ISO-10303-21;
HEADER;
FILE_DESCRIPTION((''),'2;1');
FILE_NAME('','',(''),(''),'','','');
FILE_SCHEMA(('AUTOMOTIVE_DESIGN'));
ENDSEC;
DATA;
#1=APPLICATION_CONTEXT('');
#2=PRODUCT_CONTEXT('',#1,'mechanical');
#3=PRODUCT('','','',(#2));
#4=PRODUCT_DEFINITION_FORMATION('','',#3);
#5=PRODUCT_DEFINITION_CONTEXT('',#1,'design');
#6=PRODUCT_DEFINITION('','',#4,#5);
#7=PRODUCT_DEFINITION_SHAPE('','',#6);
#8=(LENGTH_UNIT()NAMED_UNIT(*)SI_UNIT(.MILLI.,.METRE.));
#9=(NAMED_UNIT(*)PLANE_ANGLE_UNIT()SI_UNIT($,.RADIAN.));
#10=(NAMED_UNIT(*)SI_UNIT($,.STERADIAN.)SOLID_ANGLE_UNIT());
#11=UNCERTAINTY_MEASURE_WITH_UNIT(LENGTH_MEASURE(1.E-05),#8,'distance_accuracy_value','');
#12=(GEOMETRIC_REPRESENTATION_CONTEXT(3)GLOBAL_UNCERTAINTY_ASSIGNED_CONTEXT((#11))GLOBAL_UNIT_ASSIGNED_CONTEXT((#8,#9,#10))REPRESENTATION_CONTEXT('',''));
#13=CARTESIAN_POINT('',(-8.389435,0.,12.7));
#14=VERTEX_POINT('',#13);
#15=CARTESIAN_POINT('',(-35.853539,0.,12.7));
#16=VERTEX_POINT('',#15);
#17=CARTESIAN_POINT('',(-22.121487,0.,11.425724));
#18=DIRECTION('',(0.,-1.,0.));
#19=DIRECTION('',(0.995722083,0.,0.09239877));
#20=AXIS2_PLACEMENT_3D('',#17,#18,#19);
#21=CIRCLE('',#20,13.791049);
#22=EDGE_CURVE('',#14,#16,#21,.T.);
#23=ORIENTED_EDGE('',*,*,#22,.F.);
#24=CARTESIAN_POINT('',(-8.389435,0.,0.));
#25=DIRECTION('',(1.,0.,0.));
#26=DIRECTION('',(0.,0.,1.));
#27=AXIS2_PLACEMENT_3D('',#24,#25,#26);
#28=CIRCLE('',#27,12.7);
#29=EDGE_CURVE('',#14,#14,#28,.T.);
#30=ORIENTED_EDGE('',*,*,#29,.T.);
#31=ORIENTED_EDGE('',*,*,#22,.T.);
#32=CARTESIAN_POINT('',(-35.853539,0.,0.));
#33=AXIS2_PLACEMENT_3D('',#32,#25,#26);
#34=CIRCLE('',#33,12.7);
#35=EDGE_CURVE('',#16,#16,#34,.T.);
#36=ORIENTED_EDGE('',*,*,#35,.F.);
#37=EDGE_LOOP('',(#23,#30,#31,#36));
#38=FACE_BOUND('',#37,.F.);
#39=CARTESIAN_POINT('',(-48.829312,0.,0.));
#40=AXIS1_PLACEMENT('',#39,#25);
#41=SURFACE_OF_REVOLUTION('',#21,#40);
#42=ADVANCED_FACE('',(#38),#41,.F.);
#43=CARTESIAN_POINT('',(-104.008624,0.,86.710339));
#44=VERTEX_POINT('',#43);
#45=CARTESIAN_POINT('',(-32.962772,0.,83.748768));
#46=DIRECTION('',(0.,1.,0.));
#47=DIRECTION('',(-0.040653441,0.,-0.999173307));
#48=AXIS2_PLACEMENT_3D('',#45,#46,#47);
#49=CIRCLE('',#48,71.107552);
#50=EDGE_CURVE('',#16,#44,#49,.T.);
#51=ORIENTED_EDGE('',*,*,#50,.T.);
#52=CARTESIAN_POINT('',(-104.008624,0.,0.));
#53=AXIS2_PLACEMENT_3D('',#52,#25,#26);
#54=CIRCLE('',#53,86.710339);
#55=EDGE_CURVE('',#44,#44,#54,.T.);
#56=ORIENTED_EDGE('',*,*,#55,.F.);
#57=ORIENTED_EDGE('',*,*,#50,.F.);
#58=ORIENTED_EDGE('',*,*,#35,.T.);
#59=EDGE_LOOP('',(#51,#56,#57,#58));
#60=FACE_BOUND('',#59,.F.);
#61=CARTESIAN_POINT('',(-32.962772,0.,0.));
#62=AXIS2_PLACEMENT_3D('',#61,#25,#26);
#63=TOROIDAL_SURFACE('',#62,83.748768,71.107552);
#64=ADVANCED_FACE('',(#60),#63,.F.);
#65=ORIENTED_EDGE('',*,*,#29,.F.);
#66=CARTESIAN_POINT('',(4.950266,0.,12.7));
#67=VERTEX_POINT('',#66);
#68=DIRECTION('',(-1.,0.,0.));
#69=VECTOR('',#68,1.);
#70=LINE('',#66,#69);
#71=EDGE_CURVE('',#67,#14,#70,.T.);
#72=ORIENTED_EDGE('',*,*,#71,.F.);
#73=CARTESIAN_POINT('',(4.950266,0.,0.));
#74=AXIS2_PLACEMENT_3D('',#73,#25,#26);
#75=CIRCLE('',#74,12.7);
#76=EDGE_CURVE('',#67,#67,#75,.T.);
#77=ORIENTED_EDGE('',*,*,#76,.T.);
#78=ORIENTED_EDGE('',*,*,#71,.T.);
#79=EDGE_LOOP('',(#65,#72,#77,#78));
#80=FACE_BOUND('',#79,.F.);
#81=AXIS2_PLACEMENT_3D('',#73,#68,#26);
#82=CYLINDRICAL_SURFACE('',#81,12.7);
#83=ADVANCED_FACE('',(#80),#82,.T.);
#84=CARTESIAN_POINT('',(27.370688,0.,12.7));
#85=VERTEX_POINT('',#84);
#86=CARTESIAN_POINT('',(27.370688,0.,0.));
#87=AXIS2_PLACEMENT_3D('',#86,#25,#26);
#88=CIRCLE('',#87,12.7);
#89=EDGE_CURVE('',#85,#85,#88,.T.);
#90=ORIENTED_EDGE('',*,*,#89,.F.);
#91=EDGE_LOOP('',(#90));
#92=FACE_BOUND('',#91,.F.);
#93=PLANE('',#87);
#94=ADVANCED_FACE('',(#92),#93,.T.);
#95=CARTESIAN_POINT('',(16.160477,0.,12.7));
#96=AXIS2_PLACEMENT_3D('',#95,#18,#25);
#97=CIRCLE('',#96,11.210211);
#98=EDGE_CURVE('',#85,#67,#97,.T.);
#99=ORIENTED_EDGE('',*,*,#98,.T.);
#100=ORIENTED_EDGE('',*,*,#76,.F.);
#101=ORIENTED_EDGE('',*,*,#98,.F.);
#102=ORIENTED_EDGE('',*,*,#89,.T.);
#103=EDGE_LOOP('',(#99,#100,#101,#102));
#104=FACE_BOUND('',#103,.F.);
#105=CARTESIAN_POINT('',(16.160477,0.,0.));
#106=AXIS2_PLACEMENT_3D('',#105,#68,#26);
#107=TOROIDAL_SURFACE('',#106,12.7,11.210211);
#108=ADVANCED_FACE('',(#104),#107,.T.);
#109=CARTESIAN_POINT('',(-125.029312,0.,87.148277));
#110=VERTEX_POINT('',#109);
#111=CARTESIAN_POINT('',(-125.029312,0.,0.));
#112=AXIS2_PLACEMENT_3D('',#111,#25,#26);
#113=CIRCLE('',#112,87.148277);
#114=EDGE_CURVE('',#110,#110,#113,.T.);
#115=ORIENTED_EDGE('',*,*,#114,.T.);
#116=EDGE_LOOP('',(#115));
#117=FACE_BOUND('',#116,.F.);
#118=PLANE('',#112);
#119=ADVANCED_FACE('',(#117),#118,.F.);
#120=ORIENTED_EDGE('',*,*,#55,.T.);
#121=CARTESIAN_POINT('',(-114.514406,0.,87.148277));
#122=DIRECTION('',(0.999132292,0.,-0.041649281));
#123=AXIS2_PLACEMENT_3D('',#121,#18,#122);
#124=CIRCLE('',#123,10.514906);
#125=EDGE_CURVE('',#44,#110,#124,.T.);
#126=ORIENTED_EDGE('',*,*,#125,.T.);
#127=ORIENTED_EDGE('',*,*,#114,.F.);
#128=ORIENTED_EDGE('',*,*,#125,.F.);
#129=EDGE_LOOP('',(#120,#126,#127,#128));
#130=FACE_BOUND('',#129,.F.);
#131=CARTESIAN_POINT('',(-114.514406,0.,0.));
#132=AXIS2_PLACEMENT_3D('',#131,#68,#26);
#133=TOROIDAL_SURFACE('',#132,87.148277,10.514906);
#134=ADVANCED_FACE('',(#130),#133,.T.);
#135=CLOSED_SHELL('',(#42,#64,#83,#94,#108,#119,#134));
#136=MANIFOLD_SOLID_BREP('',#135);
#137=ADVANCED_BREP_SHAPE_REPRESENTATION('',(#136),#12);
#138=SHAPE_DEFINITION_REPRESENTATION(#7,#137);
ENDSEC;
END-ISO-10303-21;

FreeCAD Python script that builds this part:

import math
import FreeCAD as App
import Part
import Sketcher
from FreeCAD import Vector
Q = App.Units.Quantity

doc = App.newDocument("Part")
body = doc.addObject("PartDesign::Body", "Body")

# Sketch on XZ plane
sketch1 = doc.addObject("Sketcher::SketchObject", "Sketch")
body.addObject(sketch1)
sketch1.AttachmentSupport = (doc.XZ_Plane, [""])
sketch1.MapMode = "FlatFace"
sketch1.addGeometry([
    Part.LineSegment(Vector(-125, 87, 0), Vector(-125, 0, 0)),  # 0
    Part.LineSegment(Vector(-125, 0, 0), Vector(27, 0, 0)),  # 1
    Part.LineSegment(Vector(27, 0, 0), Vector(27, 13, 0)),  # 2
    Part.ArcOfCircle(Part.Circle(Vector(16, 13, 0), Vector(0, 0, 1), 11), math.radians(0), math.radians(180)),  # 3
    Part.LineSegment(Vector(5, 13, 0), Vector(-8, 13, 0)),  # 4
    Part.ArcOfCircle(Part.Circle(Vector(-22, 11, 0), Vector(0, 0, 1), 14), math.radians(5), math.radians(175)),  # 5
    Part.ArcOfCircle(Part.Circle(Vector(-33, 84, 0), Vector(0, 0, 1), 71), math.radians(178), math.radians(268)),  # 6
    Part.ArcOfCircle(Part.Circle(Vector(-115, 87, 0), Vector(0, 0, 1), 11), math.radians(-2), math.radians(180)),  # 7
], False)
sketch1.addConstraint([
    Sketcher.Constraint("Coincident", 0, 2, 1, 1),
    Sketcher.Constraint("Coincident", 1, 2, 2, 1),
    Sketcher.Constraint("Tangent", 2, 2, 3, 1),
    Sketcher.Constraint("Coincident", 3, 2, 4, 1),
    Sketcher.Constraint("Coincident", 4, 2, 5, 1),
    Sketcher.Constraint("Coincident", 5, 2, 6, 2),
    Sketcher.Constraint("Tangent", 6, 1, 7, 1),
    Sketcher.Constraint("Tangent", 7, 2, 0, 1),
    Sketcher.Constraint("Vertical", 0),
    Sketcher.Constraint("Horizontal", 1),
    Sketcher.Constraint("Vertical", 2),
    Sketcher.Constraint("Horizontal", 4),
    Sketcher.Constraint("PointOnObject", 0, 2, -1),
    Sketcher.Constraint("Horizontal", 2, 2, 3, 2),
    Sketcher.Constraint("Horizontal", 4, 2, 5, 2),
    Sketcher.Constraint("DistanceX", 1, 1, 1, 2, Q("6 in")),
    Sketcher.Constraint("DistanceY", 2, 1, 2, 2, Q("0.5 in")),
    Sketcher.Constraint("Radius", 3, 11.210211),
    Sketcher.Constraint("Radius", 5, 13.791049),
    Sketcher.Constraint("Radius", 6, 71.107552),
    Sketcher.Constraint("DistanceX", 4, 2, 4, 1, 13.339701),
    Sketcher.Constraint("Radius", 7, 10.514906),
    Sketcher.Constraint("DistanceY", 0, 2, 0, 1, 87.148277),
    Sketcher.Constraint("DistanceX", -1, 1, 1, 2, 27.370688),
    Sketcher.Constraint("DistanceX", 5, 2, -1, 1, 35.853539),
])
revolution = doc.addObject("PartDesign::Revolution", "Revolution")
body.addObject(revolution)
revolution.Profile = sketch1
revolution.ReferenceAxis = (sketch1, ["H_Axis"])
revolution.Angle = 360

doc.recompute()
